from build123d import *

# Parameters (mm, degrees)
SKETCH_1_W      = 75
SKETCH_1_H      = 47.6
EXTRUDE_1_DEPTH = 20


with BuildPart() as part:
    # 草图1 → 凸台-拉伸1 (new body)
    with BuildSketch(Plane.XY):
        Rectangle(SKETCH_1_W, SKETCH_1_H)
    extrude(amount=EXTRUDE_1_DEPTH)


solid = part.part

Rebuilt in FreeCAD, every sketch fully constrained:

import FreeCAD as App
import Part
import Sketcher

V = App.Vector
Q = App.Units.Quantity

doc = App.newDocument("Part")
params = doc.addObject("Spreadsheet::Sheet", "Params")
for row, (alias, value) in enumerate([
    ("sketch1_width", "75 mm"),
    ("sketch1_height", "47.6 mm"),
    ("pad1_length", "20 mm"),
], start=1):
    params.set(f"A{row}", alias)
    params.set(f"B{row}", "=" + value)
    params.setAlias(f"B{row}", alias)

body = doc.addObject("PartDesign::Body", "Body")

sketch1 = body.newObject("Sketcher::SketchObject", "Sketch")
sketch1.AttachmentSupport = (doc.getObject("XY_Plane"), [""])
sketch1.MapMode = "FlatFace"
sketch1.addGeometry([
    Part.LineSegment(V(-38, 24, 0), V(-38, -24, 0)),
    Part.LineSegment(V(-38, -24, 0), V(38, -24, 0)),
    Part.LineSegment(V(38, -24, 0), V(38, 24, 0)),
    Part.LineSegment(V(38, 24, 0), V(-38, 24, 0)),
], False)
sketch1.addConstraint([
    Sketcher.Constraint("Coincident", 0, 2, 1, 1),
    Sketcher.Constraint("Coincident", 1, 2, 2, 1),
    Sketcher.Constraint("Coincident", 2, 2, 3, 1),
    Sketcher.Constraint("Coincident", 3, 2, 0, 1),
    Sketcher.Constraint("Vertical", 0),
    Sketcher.Constraint("Horizontal", 1),
    Sketcher.Constraint("Vertical", 2),
    Sketcher.Constraint("Horizontal", 3),
    Sketcher.Constraint("Symmetric", 0, 2, 2, 2, -1, 1),
    Sketcher.Constraint("DistanceX", 1, 1, 1, 2, Q("75 mm")),
    Sketcher.Constraint("DistanceY", 0, 2, 0, 1, Q("47.6 mm")),
])
sketch1.setExpression("Constraints[9]", "Params.sketch1_width")
sketch1.setExpression("Constraints[10]", "Params.sketch1_height")
pad1 = body.newObject("PartDesign::Pad", "Pad")
pad1.Profile = sketch1
pad1.setExpression("Length", "Params.pad1_length")

doc.recompute()
